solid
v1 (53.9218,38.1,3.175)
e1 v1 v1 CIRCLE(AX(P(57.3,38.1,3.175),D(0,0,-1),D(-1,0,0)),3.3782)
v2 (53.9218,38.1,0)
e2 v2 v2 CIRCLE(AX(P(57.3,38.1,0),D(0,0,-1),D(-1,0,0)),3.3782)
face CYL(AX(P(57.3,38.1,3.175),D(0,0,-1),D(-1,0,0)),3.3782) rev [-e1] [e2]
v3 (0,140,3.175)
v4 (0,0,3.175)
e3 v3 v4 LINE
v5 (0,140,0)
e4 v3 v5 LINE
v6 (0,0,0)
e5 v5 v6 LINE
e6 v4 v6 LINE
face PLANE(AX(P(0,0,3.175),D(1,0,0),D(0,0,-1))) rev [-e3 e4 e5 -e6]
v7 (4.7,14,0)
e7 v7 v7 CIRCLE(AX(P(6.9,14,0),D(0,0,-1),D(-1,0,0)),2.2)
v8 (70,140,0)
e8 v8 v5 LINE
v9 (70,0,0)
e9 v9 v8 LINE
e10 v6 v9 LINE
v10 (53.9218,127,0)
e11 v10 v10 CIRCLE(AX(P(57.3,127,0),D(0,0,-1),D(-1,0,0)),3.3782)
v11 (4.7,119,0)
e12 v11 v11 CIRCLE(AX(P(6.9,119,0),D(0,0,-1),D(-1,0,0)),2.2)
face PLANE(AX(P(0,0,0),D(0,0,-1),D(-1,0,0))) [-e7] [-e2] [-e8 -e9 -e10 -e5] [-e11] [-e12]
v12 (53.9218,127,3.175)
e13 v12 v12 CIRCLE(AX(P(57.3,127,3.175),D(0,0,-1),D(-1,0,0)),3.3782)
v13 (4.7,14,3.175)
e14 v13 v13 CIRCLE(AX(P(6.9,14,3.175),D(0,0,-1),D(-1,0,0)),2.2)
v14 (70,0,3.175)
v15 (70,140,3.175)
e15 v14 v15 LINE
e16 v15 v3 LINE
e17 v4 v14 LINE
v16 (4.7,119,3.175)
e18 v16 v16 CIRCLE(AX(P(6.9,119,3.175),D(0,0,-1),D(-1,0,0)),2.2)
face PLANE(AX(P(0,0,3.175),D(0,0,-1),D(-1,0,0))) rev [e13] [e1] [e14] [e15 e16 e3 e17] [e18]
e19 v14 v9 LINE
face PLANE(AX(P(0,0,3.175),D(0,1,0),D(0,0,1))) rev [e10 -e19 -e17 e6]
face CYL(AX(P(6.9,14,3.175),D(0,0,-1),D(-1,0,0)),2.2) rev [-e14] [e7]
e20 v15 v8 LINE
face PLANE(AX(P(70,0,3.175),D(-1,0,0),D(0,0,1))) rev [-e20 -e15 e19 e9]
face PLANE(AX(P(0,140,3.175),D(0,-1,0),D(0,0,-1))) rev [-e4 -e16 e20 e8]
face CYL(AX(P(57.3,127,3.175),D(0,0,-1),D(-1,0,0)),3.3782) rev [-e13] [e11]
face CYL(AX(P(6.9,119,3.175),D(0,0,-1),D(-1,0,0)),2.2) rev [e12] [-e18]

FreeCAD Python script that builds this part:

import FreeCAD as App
import Part
import Sketcher

doc = App.newDocument("Part")
params = doc.addObject("Spreadsheet::Sheet", "Params")
for row, (alias, value) in enumerate([
    ("sketch1_width", "70 mm"),
    ("sketch1_height", "140 mm"),
    ("pad1_length", "3.175 mm"),
    ("sketch2_diameter", "4.4 mm"),
], start=1):
    params.set(f"A{row}", alias)
    params.set(f"B{row}", "=" + value)
    params.setAlias(f"B{row}", alias)

body = doc.addObject("PartDesign::Body", "Body")

sketch1 = body.newObject("Sketcher::SketchObject", "Sketch")
sketch1.AttachmentSupport = (doc.getObject("XY_Plane"), [""])
sketch1.MapMode = "FlatFace"
sketch1.addGeometry([
    Part.LineSegment(App.Vector(0, 140, 0), App.Vector(0, 0, 0)),
    Part.LineSegment(App.Vector(0, 0, 0), App.Vector(70, 0, 0)),
    Part.LineSegment(App.Vector(70, 0, 0), App.Vector(70, 140, 0)),
    Part.LineSegment(App.Vector(70, 140, 0), App.Vector(0, 140, 0)),
], False)
sketch1.addConstraint([
    Sketcher.Constraint("Coincident", 0, 2, 1, 1),
    Sketcher.Constraint("Coincident", 1, 2, 2, 1),
    Sketcher.Constraint("Coincident", 2, 2, 3, 1),
    Sketcher.Constraint("Coincident", 3, 2, 0, 1),
    Sketcher.Constraint("Vertical", 0),
    Sketcher.Constraint("Horizontal", 1),
    Sketcher.Constraint("Vertical", 2),
    Sketcher.Constraint("Horizontal", 3),
    Sketcher.Constraint("Coincident", 0, 2, -1, 1),
    Sketcher.Constraint("DistanceX", 1, 1, 1, 2, 70.0),
    Sketcher.Constraint("DistanceY", 0, 2, 0, 1, 140.0),
])
sketch1.setExpression("Constraints[9]", "Params.sketch1_width")
sketch1.setExpression("Constraints[10]", "Params.sketch1_height")
pad1 = body.newObject("PartDesign::Pad", "Pad")
pad1.Profile = sketch1
pad1.setExpression("Length", "Params.pad1_length")

sketch2 = body.newObject("Sketcher::SketchObject", "Sketch001")
sketch2.AttachmentSupport = (doc.getObject("XY_Plane"), [""])
sketch2.MapMode = "FlatFace"
sketch2.addGeometry([
    Part.Circle(App.Vector(6.9, 119, 0), App.Vector(0, 0, 1), 2.2),
    Part.Circle(App.Vector(57.3, 127, 0), App.Vector(0, 0, 1), 3.4),
    Part.Circle(App.Vector(57.3, 38.1, 0), App.Vector(0, 0, 1), 3.4),
    Part.Circle(App.Vector(6.9, 14, 0), App.Vector(0, 0, 1), 2.2),
], False)
sketch2.addConstraint([
    Sketcher.Constraint("Equal", 1, 2),
    Sketcher.Constraint("Equal", 0, 3),
    Sketcher.Constraint("Vertical", 1, 3, 2, 3),
    Sketcher.Constraint("Vertical", 0, 3, 3, 3),
    Sketcher.Constraint("Diameter", 0, 4.4),
    Sketcher.Constraint("DistanceY", -1, 1, 0, 3, 119.0),
    Sketcher.Constraint("DistanceY", -1, 1, 1, 3, 127.0),
    Sketcher.Constraint("DistanceY", -1, 1, 3, 3, 14.0),
    Sketcher.Constraint("Diameter", 1, 6.7564),
    Sketcher.Constraint("DistanceX", -1, 1, 0, 3, 6.9),
    Sketcher.Constraint("DistanceX", -1, 1, 1, 3, 57.3),
    Sketcher.Constraint("DistanceY", -1, 1, 2, 3, 38.1),
])
sketch2.setExpression("Constraints[4]", "Params.sketch2_diameter")
pocket1 = body.newObject("PartDesign::Pocket", "Pocket")
pocket1.Profile = sketch2
pocket1.Type = "ThroughAll"
pocket1.Reversed = True

doc.recompute()
